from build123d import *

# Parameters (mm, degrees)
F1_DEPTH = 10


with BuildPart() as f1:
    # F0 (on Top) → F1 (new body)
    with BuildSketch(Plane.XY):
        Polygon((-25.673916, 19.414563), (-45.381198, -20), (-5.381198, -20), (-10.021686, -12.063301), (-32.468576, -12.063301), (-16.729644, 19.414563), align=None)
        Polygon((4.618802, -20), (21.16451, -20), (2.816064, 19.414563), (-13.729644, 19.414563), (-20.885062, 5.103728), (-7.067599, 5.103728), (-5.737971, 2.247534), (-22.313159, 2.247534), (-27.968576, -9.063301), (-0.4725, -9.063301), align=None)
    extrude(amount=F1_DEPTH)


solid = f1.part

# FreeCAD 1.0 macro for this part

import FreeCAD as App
import Part
import Sketcher
from FreeCAD import Vector
Q = App.Units.Quantity


def add_polygon(sketch, points):
    """Adds a closed chain of lines whose ends are joined by coincident constraints."""
    first, n = sketch.GeometryCount, len(points)
    for a, b in zip(points, points[1:] + points[:1]):
        sketch.addGeometry(Part.LineSegment(App.Vector(*a, 0), App.Vector(*b, 0)), False)
    for i in range(n):
        sketch.addConstraint(Sketcher.Constraint("Coincident", first + i, 2, first + (i + 1) % n, 1))

doc = App.newDocument("Part")
body = doc.addObject("PartDesign::Body", "Body")
body.AllowCompound = True

sketch1 = body.newObject("Sketcher::SketchObject", "Sketch")
sketch1.AttachmentSupport = (doc.getObject("XY_Plane"), [""])
sketch1.MapMode = "FlatFace"
add_polygon(sketch1, [(-25.7, 19.4), (-45.4, -20), (-5.4, -20), (-10, -12.1), (-32.5, -12.1), (-16.7, 19.4)])
add_polygon(sketch1, [(4.6, -20), (21.2, -20), (2.8, 19.4), (-13.7, 19.4), (-20.9, 5.1), (-7.1, 5.1), (-5.7, 2.2), (-22.3, 2.2), (-28, -9.1), (-0.5, -9.1)])
sketch1.addConstraint([
    Sketcher.Constraint("Horizontal", 1),
    Sketcher.Constraint("Horizontal", 3),
    Sketcher.Constraint("Horizontal", 5),
    Sketcher.Constraint("Horizontal", 6),
    Sketcher.Constraint("Horizontal", 8),
    Sketcher.Constraint("Horizontal", 10),
    Sketcher.Constraint("Horizontal", 12),
    Sketcher.Constraint("Horizontal", 14),
    Sketcher.Constraint("Parallel", 0, 4),
    Sketcher.Constraint("Parallel", 4, 9),
    Sketcher.Constraint("Parallel", 7, 11),
    Sketcher.Constraint("Parallel", 9, 13),
    Sketcher.Constraint("Parallel", 11, 15),
    Sketcher.Constraint("Horizontal", 1, 2, 6, 2),
    Sketcher.Constraint("Horizontal", 5, 2, 7, 2),
    Sketcher.Constraint("Equal", 6, 8),
    Sketcher.Constraint("DistanceX", 1, 1, 1, 2, Q("40 mm")),
    Sketcher.Constraint("Distance", 9, Q("16 mm")),
    Sketcher.Constraint("DistanceY", 0, 2, -1, 1, Q("20 mm")),
    Sketcher.Constraint("DistanceX", 4, 2, 8, 2, Q("3 mm")),
    Sketcher.Constraint("DistanceY", 3, 2, 13, 2, Q("3 mm")),
    Sketcher.Constraint("DistanceX", 1, 2, 15, 2, Q("10 mm")),
    Sketcher.Constraint("DistanceX", 3, 2, 13, 2, Q("4.5 mm")),
    Sketcher.Constraint("DistanceX", 3, 2, 3, 1, Q("22.44689 mm")),
    Sketcher.Constraint("DistanceX", 5, 2, 5, 1, Q("8.944272 mm")),
    Sketcher.Constraint("DistanceX", 6, 1, 6, 2, Q("16.545708 mm")),
    Sketcher.Constraint("DistanceX", 1, 2, -1, 1, Q("5.381198 mm")),
    Sketcher.Constraint("DistanceY", 2, 2, -1, 1, Q("12.063301 mm")),
    Sketcher.Constraint("DistanceX", 10, 2, -1, 1, Q("7.067599 mm")),
    Sketcher.Constraint("DistanceX", 14, 2, -1, 1, Q("0.4725 mm")),
    Sketcher.Constraint("Distance", 0, Q("44.066821 mm")),
    Sketcher.Constraint("DistanceX", 12, 2, 12, 1, Q("16.575188 mm")),
])
pad1 = body.newObject("PartDesign::Pad", "Pad")
pad1.Profile = sketch1
pad1.Length = 10

doc.recompute()
